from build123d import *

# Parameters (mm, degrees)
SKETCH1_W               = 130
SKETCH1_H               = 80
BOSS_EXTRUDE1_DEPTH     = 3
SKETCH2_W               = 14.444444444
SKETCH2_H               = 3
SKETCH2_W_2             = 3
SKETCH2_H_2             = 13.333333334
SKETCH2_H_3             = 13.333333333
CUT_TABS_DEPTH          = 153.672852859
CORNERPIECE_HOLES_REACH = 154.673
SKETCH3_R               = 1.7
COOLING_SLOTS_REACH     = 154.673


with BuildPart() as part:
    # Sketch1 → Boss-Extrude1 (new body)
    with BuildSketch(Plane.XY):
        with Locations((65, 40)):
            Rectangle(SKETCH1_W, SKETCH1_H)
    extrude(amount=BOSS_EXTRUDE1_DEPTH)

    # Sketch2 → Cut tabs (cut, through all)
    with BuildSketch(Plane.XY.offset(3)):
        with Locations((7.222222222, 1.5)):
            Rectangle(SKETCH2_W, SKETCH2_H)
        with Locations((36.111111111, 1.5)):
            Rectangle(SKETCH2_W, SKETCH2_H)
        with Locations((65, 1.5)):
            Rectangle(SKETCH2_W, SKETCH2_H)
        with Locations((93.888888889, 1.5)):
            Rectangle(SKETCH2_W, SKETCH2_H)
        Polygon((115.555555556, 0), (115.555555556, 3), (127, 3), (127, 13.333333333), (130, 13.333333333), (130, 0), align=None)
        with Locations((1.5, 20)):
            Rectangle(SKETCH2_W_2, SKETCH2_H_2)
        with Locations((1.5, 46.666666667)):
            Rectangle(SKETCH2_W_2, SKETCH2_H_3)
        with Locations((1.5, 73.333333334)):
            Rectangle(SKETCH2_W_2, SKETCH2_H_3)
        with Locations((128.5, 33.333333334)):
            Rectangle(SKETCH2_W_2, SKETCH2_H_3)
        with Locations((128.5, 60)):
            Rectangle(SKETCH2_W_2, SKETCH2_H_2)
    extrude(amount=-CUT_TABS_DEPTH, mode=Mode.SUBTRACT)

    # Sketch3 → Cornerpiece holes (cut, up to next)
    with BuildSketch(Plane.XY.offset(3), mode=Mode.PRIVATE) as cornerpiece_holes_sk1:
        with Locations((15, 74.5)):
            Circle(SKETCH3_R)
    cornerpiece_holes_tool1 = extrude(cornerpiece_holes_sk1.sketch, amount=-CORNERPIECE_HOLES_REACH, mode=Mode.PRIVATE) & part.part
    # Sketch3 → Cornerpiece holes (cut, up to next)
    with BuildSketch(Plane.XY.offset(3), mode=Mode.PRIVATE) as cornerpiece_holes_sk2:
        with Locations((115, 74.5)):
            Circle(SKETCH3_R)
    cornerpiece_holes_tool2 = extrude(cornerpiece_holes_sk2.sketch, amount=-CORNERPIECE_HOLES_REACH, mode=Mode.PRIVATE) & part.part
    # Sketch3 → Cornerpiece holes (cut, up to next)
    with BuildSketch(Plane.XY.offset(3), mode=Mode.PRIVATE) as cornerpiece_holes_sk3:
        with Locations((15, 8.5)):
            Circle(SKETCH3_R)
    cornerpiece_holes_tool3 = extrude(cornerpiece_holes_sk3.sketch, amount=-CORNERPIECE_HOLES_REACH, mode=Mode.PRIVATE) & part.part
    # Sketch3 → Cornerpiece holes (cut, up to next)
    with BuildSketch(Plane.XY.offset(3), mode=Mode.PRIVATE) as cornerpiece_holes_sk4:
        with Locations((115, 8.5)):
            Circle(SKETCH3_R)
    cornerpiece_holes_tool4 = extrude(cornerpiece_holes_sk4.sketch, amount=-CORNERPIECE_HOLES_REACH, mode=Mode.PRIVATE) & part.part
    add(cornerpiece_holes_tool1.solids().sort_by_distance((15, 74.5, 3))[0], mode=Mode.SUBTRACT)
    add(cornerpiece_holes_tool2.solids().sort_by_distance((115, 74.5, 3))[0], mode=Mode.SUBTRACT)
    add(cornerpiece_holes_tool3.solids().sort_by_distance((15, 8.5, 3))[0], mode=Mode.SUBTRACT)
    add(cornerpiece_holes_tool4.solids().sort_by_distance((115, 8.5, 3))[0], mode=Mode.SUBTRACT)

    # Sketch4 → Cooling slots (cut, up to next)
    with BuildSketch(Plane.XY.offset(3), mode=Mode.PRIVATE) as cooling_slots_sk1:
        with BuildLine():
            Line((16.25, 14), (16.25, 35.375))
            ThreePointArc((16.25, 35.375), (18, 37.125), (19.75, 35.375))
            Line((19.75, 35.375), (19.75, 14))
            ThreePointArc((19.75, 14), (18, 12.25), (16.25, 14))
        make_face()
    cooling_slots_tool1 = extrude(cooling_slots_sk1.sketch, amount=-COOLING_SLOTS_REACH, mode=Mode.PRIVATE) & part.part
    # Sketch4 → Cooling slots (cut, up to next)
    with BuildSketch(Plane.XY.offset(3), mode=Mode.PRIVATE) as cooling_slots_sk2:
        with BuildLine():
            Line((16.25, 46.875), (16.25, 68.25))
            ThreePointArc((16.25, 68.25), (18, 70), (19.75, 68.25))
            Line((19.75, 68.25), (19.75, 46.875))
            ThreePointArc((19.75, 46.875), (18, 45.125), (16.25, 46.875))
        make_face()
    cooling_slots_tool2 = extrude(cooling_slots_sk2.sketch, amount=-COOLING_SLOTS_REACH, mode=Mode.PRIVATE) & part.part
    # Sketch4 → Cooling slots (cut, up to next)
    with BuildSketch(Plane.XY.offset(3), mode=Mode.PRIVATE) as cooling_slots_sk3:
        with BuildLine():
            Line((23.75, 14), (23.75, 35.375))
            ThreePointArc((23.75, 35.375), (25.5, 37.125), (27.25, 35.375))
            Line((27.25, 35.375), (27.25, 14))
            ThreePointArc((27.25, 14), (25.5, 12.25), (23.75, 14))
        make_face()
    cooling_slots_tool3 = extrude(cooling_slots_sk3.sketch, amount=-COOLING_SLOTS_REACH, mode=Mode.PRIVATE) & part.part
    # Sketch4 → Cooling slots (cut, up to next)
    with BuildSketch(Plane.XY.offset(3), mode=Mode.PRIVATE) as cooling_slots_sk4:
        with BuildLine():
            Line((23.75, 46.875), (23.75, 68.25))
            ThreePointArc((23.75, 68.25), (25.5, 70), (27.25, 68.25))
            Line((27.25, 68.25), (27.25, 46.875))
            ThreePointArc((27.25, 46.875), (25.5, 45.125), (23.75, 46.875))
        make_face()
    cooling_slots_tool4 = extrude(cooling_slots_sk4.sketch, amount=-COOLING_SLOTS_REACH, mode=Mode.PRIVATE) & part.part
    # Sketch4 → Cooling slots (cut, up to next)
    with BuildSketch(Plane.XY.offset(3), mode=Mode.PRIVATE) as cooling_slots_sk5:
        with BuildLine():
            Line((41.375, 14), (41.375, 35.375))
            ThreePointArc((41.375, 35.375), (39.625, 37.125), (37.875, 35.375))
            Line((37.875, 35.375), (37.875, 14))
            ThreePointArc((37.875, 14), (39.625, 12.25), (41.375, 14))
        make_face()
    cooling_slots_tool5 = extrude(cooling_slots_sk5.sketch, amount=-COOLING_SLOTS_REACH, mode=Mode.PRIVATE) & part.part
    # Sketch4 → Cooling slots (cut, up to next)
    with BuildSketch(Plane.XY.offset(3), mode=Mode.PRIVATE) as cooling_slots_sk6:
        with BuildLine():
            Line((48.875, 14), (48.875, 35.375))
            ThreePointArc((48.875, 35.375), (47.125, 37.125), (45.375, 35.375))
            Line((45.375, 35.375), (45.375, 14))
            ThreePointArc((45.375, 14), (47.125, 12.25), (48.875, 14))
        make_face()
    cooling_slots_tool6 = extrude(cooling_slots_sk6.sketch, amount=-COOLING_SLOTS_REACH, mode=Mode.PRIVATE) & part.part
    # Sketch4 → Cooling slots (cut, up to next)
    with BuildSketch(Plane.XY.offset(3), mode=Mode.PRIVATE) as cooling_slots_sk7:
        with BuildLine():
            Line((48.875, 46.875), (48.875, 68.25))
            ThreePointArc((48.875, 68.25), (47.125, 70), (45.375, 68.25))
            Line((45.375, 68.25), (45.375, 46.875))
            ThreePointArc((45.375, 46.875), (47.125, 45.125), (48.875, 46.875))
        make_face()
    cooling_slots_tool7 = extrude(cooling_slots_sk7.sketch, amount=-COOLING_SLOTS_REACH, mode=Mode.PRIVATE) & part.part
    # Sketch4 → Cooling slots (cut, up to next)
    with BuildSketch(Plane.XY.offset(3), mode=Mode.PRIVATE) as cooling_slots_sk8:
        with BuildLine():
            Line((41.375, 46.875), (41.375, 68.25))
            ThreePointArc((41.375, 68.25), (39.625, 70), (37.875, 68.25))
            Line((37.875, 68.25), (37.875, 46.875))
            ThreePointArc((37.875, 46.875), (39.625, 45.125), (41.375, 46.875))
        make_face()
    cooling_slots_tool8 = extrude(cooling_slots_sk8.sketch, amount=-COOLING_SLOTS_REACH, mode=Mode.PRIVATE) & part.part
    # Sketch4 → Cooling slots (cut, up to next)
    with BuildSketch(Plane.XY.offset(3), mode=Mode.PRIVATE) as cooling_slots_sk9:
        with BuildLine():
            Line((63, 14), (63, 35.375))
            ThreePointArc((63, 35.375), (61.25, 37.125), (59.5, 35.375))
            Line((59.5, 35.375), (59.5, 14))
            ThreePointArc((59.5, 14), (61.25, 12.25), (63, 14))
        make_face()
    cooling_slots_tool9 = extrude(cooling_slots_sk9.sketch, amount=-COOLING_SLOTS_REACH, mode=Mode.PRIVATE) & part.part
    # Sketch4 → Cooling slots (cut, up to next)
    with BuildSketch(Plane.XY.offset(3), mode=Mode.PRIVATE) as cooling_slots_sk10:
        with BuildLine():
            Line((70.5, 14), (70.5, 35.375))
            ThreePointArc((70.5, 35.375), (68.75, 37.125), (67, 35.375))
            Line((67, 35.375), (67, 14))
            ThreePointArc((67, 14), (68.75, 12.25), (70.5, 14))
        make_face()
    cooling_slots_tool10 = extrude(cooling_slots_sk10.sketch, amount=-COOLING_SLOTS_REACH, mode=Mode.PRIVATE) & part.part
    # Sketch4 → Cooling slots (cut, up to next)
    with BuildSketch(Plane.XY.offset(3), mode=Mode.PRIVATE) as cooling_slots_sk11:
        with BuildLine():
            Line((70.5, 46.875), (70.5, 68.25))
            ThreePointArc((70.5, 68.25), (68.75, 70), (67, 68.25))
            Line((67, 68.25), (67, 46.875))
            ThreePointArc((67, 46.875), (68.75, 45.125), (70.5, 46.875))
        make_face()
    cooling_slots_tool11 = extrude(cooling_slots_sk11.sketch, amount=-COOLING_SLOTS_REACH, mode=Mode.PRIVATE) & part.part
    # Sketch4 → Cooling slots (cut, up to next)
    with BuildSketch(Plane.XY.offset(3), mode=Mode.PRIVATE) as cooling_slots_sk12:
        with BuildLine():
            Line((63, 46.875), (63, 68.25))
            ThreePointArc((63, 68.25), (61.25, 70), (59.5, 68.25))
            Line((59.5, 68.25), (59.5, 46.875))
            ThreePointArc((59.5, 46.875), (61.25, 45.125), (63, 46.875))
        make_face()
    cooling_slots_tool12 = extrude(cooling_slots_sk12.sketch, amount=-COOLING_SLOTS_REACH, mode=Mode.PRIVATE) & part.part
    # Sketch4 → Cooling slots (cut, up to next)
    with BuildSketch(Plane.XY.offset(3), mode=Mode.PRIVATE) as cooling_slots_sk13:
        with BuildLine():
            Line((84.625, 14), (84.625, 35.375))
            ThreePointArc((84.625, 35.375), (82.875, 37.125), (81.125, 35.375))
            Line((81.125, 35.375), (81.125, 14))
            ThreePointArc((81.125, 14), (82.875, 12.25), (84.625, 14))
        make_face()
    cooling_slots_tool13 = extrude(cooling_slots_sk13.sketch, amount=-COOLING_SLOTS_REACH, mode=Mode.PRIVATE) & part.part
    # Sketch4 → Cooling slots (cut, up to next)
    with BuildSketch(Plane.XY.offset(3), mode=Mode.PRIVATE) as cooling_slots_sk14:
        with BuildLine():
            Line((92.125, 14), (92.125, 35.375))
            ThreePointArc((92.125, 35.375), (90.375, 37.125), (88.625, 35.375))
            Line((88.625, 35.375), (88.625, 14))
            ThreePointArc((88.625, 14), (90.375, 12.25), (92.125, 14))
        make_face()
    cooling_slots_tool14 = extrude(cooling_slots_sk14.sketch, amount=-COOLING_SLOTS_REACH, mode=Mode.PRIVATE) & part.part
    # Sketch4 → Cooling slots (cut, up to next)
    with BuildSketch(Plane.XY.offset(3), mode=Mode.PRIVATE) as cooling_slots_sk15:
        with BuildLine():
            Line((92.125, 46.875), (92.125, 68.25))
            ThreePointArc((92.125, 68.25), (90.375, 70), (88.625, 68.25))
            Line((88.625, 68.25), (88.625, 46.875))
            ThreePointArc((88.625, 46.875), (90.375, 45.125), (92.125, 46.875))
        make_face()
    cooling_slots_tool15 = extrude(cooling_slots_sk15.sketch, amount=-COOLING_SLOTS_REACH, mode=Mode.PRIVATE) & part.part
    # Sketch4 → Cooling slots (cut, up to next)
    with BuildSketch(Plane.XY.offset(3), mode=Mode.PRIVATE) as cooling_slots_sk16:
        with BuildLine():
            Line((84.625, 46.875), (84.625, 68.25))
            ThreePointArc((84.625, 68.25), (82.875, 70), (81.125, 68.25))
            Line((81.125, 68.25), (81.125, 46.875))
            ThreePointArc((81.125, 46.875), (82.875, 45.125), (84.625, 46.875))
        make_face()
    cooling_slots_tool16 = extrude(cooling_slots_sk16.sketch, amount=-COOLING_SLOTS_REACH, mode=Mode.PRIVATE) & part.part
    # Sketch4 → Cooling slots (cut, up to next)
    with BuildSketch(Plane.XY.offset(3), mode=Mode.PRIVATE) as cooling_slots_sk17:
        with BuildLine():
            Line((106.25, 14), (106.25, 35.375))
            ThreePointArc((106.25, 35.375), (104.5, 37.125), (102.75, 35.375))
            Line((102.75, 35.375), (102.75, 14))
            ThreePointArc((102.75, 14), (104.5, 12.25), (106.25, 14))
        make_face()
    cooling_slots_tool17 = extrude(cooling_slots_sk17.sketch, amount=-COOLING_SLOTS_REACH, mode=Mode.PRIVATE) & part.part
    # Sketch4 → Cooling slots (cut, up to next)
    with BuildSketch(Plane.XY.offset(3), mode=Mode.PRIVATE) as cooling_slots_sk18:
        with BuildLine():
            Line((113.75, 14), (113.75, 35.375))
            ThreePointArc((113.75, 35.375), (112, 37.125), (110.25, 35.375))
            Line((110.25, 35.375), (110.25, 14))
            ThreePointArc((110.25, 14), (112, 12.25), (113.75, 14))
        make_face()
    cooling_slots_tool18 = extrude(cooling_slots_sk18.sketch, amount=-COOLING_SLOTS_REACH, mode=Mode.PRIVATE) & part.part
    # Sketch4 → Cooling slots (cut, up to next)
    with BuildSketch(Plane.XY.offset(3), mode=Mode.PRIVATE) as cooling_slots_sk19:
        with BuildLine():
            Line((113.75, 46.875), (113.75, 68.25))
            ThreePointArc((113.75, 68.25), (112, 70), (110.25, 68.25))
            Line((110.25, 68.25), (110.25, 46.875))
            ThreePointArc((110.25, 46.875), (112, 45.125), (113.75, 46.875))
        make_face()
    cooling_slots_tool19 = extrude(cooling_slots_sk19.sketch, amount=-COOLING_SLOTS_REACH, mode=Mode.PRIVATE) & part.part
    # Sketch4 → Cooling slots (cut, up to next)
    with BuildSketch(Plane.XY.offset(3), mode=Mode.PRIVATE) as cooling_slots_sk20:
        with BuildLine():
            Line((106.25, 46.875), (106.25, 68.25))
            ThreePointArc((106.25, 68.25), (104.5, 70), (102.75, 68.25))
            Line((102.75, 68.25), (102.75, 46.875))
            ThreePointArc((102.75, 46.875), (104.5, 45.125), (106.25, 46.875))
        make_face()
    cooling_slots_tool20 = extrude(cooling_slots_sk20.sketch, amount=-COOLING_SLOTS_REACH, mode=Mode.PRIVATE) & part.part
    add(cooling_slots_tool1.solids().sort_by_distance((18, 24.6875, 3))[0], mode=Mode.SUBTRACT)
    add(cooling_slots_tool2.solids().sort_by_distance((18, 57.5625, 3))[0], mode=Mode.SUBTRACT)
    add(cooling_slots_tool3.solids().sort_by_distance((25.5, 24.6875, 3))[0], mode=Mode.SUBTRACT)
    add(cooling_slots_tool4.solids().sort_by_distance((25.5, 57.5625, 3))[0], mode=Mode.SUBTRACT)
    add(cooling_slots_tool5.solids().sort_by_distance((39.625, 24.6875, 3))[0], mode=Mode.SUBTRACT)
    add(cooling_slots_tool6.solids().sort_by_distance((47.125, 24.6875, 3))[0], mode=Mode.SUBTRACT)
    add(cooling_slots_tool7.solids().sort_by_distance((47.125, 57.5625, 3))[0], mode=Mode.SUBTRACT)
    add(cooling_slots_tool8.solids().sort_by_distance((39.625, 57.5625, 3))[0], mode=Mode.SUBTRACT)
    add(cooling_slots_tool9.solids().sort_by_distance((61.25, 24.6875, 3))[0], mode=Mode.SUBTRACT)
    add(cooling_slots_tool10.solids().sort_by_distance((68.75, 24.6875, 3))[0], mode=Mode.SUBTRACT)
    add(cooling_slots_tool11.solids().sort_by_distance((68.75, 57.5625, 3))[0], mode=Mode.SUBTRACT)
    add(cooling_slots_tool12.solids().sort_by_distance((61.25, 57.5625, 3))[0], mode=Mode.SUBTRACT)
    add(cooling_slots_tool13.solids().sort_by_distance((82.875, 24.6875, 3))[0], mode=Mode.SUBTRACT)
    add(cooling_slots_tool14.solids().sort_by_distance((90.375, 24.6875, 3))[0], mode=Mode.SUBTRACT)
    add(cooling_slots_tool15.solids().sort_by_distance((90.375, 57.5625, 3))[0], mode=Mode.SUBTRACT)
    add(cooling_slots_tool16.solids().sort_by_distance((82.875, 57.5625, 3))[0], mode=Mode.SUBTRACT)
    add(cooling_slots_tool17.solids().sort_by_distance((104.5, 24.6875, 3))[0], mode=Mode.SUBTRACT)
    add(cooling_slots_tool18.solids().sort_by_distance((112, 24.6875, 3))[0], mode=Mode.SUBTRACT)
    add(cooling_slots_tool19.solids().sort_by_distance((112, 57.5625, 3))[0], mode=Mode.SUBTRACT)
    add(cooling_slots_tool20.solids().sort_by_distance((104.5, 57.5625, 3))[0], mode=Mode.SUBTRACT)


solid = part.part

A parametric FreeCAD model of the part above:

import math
import FreeCAD as App
import Part
import Sketcher

V = App.Vector
Q = App.Units.Quantity


def add_polygon(sketch, points):
    """Adds a closed chain of lines whose ends are joined by coincident constraints."""
    first, n = sketch.GeometryCount, len(points)
    for a, b in zip(points, points[1:] + points[:1]):
        sketch.addGeometry(Part.LineSegment(App.Vector(*a, 0), App.Vector(*b, 0)), False)
    for i in range(n):
        sketch.addConstraint(Sketcher.Constraint("Coincident", first + i, 2, first + (i + 1) % n, 1))

doc = App.newDocument("Part")
body = doc.addObject("PartDesign::Body", "Body")

# Sketch on XY plane
sketch1 = body.newObject("Sketcher::SketchObject", "Sketch")
sketch1.AttachmentSupport = (doc.getObject("XY_Plane"), [""])
sketch1.MapMode = "FlatFace"
add_polygon(sketch1, [(0, 80), (0, 0), (130, 0), (130, 80)])  # lines 0-3
sketch1.addConstraint([
    Sketcher.Constraint("Vertical", 0),
    Sketcher.Constraint("Horizontal", 1),
    Sketcher.Constraint("Vertical", 2),
    Sketcher.Constraint("Horizontal", 3),
    Sketcher.Constraint("Coincident", 0, 2, -1, 1),
    Sketcher.Constraint("DistanceX", 1, 1, 1, 2, Q("130 mm")),
    Sketcher.Constraint("DistanceY", 0, 2, 0, 1, Q("80 mm")),
])
pad1 = body.newObject("PartDesign::Pad", "Pad")
pad1.Profile = sketch1
pad1.Length = 3

# Sketch on XY plane
sketch2 = body.newObject("Sketcher::SketchObject", "Sketch001")
sketch2.AttachmentSupport = (doc.getObject("XY_Plane"), [""])
sketch2.MapMode = "FlatFace"
sketch2.AttachmentOffset = App.Placement(V(0, 0, 3), App.Rotation())
add_polygon(sketch2, [(0, 3), (0, 0), (14.4, 0), (14.4, 3)])  # lines 0-3
add_polygon(sketch2, [(28.9, 3), (28.9, 0), (43.3, 0), (43.3, 3)])  # lines 4-7
add_polygon(sketch2, [(57.8, 3), (57.8, 0), (72.2, 0), (72.2, 3)])  # lines 8-11
add_polygon(sketch2, [(86.7, 3), (86.7, 0), (101.1, 0), (101.1, 3)])  # lines 12-15
add_polygon(sketch2, [(115.6, 3), (115.6, 0), (130, 0), (130, 13.3), (127, 13.3), (127, 3)])  # lines 16-21
add_polygon(sketch2, [(0, 26.7), (0, 13.3), (3, 13.3), (3, 26.7)])  # lines 22-25
add_polygon(sketch2, [(0, 53.3), (0, 40), (3, 40), (3, 53.3)])  # lines 26-29
add_polygon(sketch2, [(0, 80), (0, 66.7), (3, 66.7), (3, 80)])  # lines 30-33
add_polygon(sketch2, [(127, 40), (127, 26.7), (130, 26.7), (130, 40)])  # lines 34-37
add_polygon(sketch2, [(127, 66.7), (127, 53.3), (130, 53.3), (130, 66.7)])  # lines 38-41
sketch2.addConstraint([
    Sketcher.Constraint("Vertical", 0),
    Sketcher.Constraint("Horizontal", 1),
    Sketcher.Constraint("Vertical", 2),
    Sketcher.Constraint("Horizontal", 3),
    Sketcher.Constraint("Vertical", 4),
    Sketcher.Constraint("Horizontal", 5),
    Sketcher.Constraint("Vertical", 6),
    Sketcher.Constraint("Horizontal", 7),
    Sketcher.Constraint("Vertical", 8),
    Sketcher.Constraint("Horizontal", 9),
    Sketcher.Constraint("Vertical", 10),
    Sketcher.Constraint("Horizontal", 11),
    Sketcher.Constraint("Vertical", 12),
    Sketcher.Constraint("Horizontal", 13),
    Sketcher.Constraint("Vertical", 14),
    Sketcher.Constraint("Horizontal", 15),
    Sketcher.Constraint("Vertical", 16),
    Sketcher.Constraint("Horizontal", 17),
    Sketcher.Constraint("Vertical", 18),
    Sketcher.Constraint("Horizontal", 19),
    Sketcher.Constraint("Vertical", 20),
    Sketcher.Constraint("Horizontal", 21),
    Sketcher.Constraint("Vertical", 22),
    Sketcher.Constraint("Horizontal", 23),
    Sketcher.Constraint("Vertical", 24),
    Sketcher.Constraint("Horizontal", 25),
    Sketcher.Constraint("Vertical", 26),
    Sketcher.Constraint("Horizontal", 27),
    Sketcher.Constraint("Vertical", 28),
    Sketcher.Constraint("Horizontal", 29),
    Sketcher.Constraint("Vertical", 30),
    Sketcher.Constraint("Horizontal", 31),
    Sketcher.Constraint("Vertical", 32),
    Sketcher.Constraint("Horizontal", 33),
    Sketcher.Constraint("Vertical", 34),
    Sketcher.Constraint("Horizontal", 35),
    Sketcher.Constraint("Vertical", 36),
    Sketcher.Constraint("Horizontal", 37),
    Sketcher.Constraint("Vertical", 38),
    Sketcher.Constraint("Horizontal", 39),
    Sketcher.Constraint("Vertical", 40),
    Sketcher.Constraint("Horizontal", 41),
    Sketcher.Constraint("Coincident", 0, 2, -1, 1),
    Sketcher.Constraint("PointOnObject", 4, 2, -1),
    Sketcher.Constraint("PointOnObject", 8, 2, -1),
    Sketcher.Constraint("PointOnObject", 12, 2, -1),
    Sketcher.Constraint("PointOnObject", 16, 2, -1),
    Sketcher.Constraint("PointOnObject", 22, 2, -2),
    Sketcher.Constraint("PointOnObject", 26, 2, -2),
    Sketcher.Constraint("PointOnObject", 30, 2, -2),
    Sketcher.Constraint("Horizontal", 3, 2, 6, 2),
    Sketcher.Constraint("Horizontal", 7, 2, 10, 2),
    Sketcher.Constraint("Horizontal", 11, 2, 14, 2),
    Sketcher.Constraint("Horizontal", 15, 2, 20, 2),
    Sketcher.Constraint("Horizontal", 19, 2, 22, 2),
    Sketcher.Constraint("Horizontal", 25, 2, 34, 2),
    Sketcher.Constraint("Horizontal", 27, 2, 36, 2),
    Sketcher.Constraint("Horizontal", 29, 2, 38, 2),
    Sketcher.Constraint("Horizontal", 31, 2, 40, 2),
    Sketcher.Constraint("Vertical", 24, 2, 27, 2),
    Sketcher.Constraint("Vertical", 28, 2, 31, 2),
    Sketcher.Constraint("Vertical", 20, 2, 34, 2),
    Sketcher.Constraint("Vertical", 18, 2, 35, 2),
    Sketcher.Constraint("Vertical", 37, 2, 38, 2),
    Sketcher.Constraint("Vertical", 36, 2, 39, 2),
    Sketcher.Constraint("Equal", 3, 5),
    Sketcher.Constraint("Equal", 7, 9),
    Sketcher.Constraint("Equal", 11, 13),
    Sketcher.Constraint("Equal", 15, 17),
    Sketcher.Constraint("Equal", 19, 23),
    Sketcher.Constraint("Equal", 41, 0),
    Sketcher.Constraint("Equal", 18, 22),
    Sketcher.Constraint("Equal", 24, 26),
    Sketcher.Constraint("Equal", 28, 30),
    Sketcher.Constraint("Equal", 32, 34),
    Sketcher.Constraint("Equal", 36, 38),
    Sketcher.Constraint("DistanceX", 19, 2, 19, 1, Q("3 mm")),
    Sketcher.Constraint("DistanceX", -1, 1, 17, 2, Q("130 mm")),
    Sketcher.Constraint("DistanceY", -1, 1, 26, 2, Q("40 mm")),
    Sketcher.Constraint("DistanceX", 1, 1, 1, 2, Q("14.444444 mm")),
    Sketcher.Constraint("DistanceX", -1, 1, 4, 2, Q("28.888889 mm")),
    Sketcher.Constraint("DistanceX", -1, 1, 13, 2, Q("101.111111 mm")),
    Sketcher.Constraint("DistanceX", 4, 2, 8, 2, Q("28.888889 mm")),
])
pocket1 = body.newObject("PartDesign::Pocket", "Pocket")
pocket1.Profile = sketch2
pocket1.Type = "ThroughAll"

# Sketch on XY plane
sketch3 = body.newObject("Sketcher::SketchObject", "Sketch002")
sketch3.AttachmentSupport = (doc.getObject("XY_Plane"), [""])
sketch3.MapMode = "FlatFace"
sketch3.AttachmentOffset = App.Placement(V(0, 0, 3), App.Rotation())
sketch3.addGeometry(Part.Circle(V(15, 74.5, 0), V(0, 0, 1), 1.7), False)
sketch3.addConstraint([
    Sketcher.Constraint("Diameter", 0, Q("3.4 mm")),
    Sketcher.Constraint("DistanceX", -1, 1, 0, 3, Q("15 mm")),
    Sketcher.Constraint("DistanceY", -1, 1, 0, 3, Q("74.5 mm")),
])
pocket2 = body.newObject("PartDesign::Pocket", "Pocket001")
pocket2.Profile = sketch3
pocket2.Type = "UpToFirst"

# Sketch on XY plane
sketch4 = body.newObject("Sketcher::SketchObject", "Sketch003")
sketch4.AttachmentSupport = (doc.getObject("XY_Plane"), [""])
sketch4.MapMode = "FlatFace"
sketch4.AttachmentOffset = App.Placement(V(0, 0, 3), App.Rotation())
sketch4.addGeometry(Part.Circle(V(115, 74.5, 0), V(0, 0, 1), 1.7), False)
sketch4.addConstraint([
    Sketcher.Constraint("Diameter", 0, Q("3.4 mm")),
    Sketcher.Constraint("DistanceX", -1, 1, 0, 3, Q("115 mm")),
    Sketcher.Constraint("DistanceY", -1, 1, 0, 3, Q("74.5 mm")),
])
pocket3 = body.newObject("PartDesign::Pocket", "Pocket002")
pocket3.Profile = sketch4
pocket3.Type = "UpToFirst"

# Sketch on XY plane
sketch5 = body.newObject("Sketcher::SketchObject", "Sketch004")
sketch5.AttachmentSupport = (doc.getObject("XY_Plane"), [""])
sketch5.MapMode = "FlatFace"
sketch5.AttachmentOffset = App.Placement(V(0, 0, 3), App.Rotation())
sketch5.addGeometry(Part.Circle(V(15, 8.5, 0), V(0, 0, 1), 1.7), False)
sketch5.addConstraint([
    Sketcher.Constraint("Diameter", 0, Q("3.4 mm")),
    Sketcher.Constraint("DistanceX", -1, 1, 0, 3, Q("15 mm")),
    Sketcher.Constraint("DistanceY", -1, 1, 0, 3, Q("8.5 mm")),
])
pocket4 = body.newObject("PartDesign::Pocket", "Pocket003")
pocket4.Profile = sketch5
pocket4.Type = "UpToFirst"

# Sketch on XY plane
sketch6 = body.newObject("Sketcher::SketchObject", "Sketch005")
sketch6.AttachmentSupport = (doc.getObject("XY_Plane"), [""])
sketch6.MapMode = "FlatFace"
sketch6.AttachmentOffset = App.Placement(V(0, 0, 3), App.Rotation())
sketch6.addGeometry(Part.Circle(V(115, 8.5, 0), V(0, 0, 1), 1.7), False)
sketch6.addConstraint([
    Sketcher.Constraint("Diameter", 0, Q("3.4 mm")),
    Sketcher.Constraint("DistanceX", -1, 1, 0, 3, Q("115 mm")),
    Sketcher.Constraint("DistanceY", -1, 1, 0, 3, Q("8.5 mm")),
])
pocket5 = body.newObject("PartDesign::Pocket", "Pocket004")
pocket5.Profile = sketch6
pocket5.Type = "UpToFirst"

# Sketch on XY plane
sketch7 = body.newObject("Sketcher::SketchObject", "Sketch006")
sketch7.AttachmentSupport = (doc.getObject("XY_Plane"), [""])
sketch7.MapMode = "FlatFace"
sketch7.AttachmentOffset = App.Placement(V(0, 0, 3), App.Rotation())
sketch7.addGeometry([
    Part.LineSegment(V(16.2, 35.4, 0), V(16.2, 14, 0)),
    Part.ArcOfCircle(Part.Circle(V(18, 14, 0), V(0, 0, 1), 1.8), math.radians(180), math.radians(360)),
    Part.LineSegment(V(19.8, 14, 0), V(19.8, 35.4, 0)),
    Part.ArcOfCircle(Part.Circle(V(18, 35.4, 0), V(0, 0, 1), 1.8), math.radians(0), math.radians(180)),
], False)
sketch7.addConstraint([
    Sketcher.Constraint("Tangent", 0, 2, 1, 1),
    Sketcher.Constraint("Tangent", 1, 2, 2, 1),
    Sketcher.Constraint("Tangent", 2, 2, 3, 1),
    Sketcher.Constraint("Tangent", 3, 2, 0, 1),
    Sketcher.Constraint("Vertical", 0),
    Sketcher.Constraint("Vertical", 2),
    Sketcher.Constraint("Radius", 1, Q("1.75 mm")),
    Sketcher.Constraint("DistanceX", -1, 1, 1, 3, Q("18 mm")),
    Sketcher.Constraint("DistanceY", -1, 1, 1, 3, Q("14 mm")),
    Sketcher.Constraint("DistanceY", 0, 2, 0, 1, Q("21.375 mm")),
])
pocket6 = body.newObject("PartDesign::Pocket", "Pocket005")
pocket6.Profile = sketch7
pocket6.Type = "UpToFirst"

# Sketch on XY plane
sketch8 = body.newObject("Sketcher::SketchObject", "Sketch007")
sketch8.AttachmentSupport = (doc.getObject("XY_Plane"), [""])
sketch8.MapMode = "FlatFace"
sketch8.AttachmentOffset = App.Placement(V(0, 0, 3), App.Rotation())
sketch8.addGeometry([
    Part.LineSegment(V(16.2, 68.2, 0), V(16.2, 46.9, 0)),
    Part.ArcOfCircle(Part.Circle(V(18, 46.9, 0), V(0, 0, 1), 1.8), math.radians(180), math.radians(360)),
    Part.LineSegment(V(19.8, 46.9, 0), V(19.8, 68.2, 0)),
    Part.ArcOfCircle(Part.Circle(V(18, 68.2, 0), V(0, 0, 1), 1.8), math.radians(0), math.radians(180)),
], False)
sketch8.addConstraint([
    Sketcher.Constraint("Tangent", 0, 2, 1, 1),
    Sketcher.Constraint("Tangent", 1, 2, 2, 1),
    Sketcher.Constraint("Tangent", 2, 2, 3, 1),
    Sketcher.Constraint("Tangent", 3, 2, 0, 1),
    Sketcher.Constraint("Vertical", 0),
    Sketcher.Constraint("Vertical", 2),
    Sketcher.Constraint("Radius", 1, Q("1.75 mm")),
    Sketcher.Constraint("DistanceX", -1, 1, 1, 3, Q("18 mm")),
    Sketcher.Constraint("DistanceY", 0, 2, 0, 1, Q("21.375 mm")),
    Sketcher.Constraint("DistanceY", -1, 1, 3, 3, Q("68.25 mm")),
])
pocket7 = body.newObject("PartDesign::Pocket", "Pocket006")
pocket7.Profile = sketch8
pocket7.Type = "UpToFirst"

# Sketch on XY plane
sketch9 = body.newObject("Sketcher::SketchObject", "Sketch008")
sketch9.AttachmentSupport = (doc.getObject("XY_Plane"), [""])
sketch9.MapMode = "FlatFace"
sketch9.AttachmentOffset = App.Placement(V(0, 0, 3), App.Rotation())
sketch9.addGeometry([
    Part.LineSegment(V(23.8, 35.4, 0), V(23.8, 14, 0)),
    Part.ArcOfCircle(Part.Circle(V(25.5, 14, 0), V(0, 0, 1), 1.8), math.radians(180), math.radians(360)),
    Part.LineSegment(V(27.2, 14, 0), V(27.2, 35.4, 0)),
    Part.ArcOfCircle(Part.Circle(V(25.5, 35.4, 0), V(0, 0, 1), 1.8), math.radians(0), math.radians(180)),
], False)
sketch9.addConstraint([
    Sketcher.Constraint("Tangent", 0, 2, 1, 1),
    Sketcher.Constraint("Tangent", 1, 2, 2, 1),
    Sketcher.Constraint("Tangent", 2, 2, 3, 1),
    Sketcher.Constraint("Tangent", 3, 2, 0, 1),
    Sketcher.Constraint("Vertical", 0),
    Sketcher.Constraint("Vertical", 2),
    Sketcher.Constraint("Radius", 1, Q("1.75 mm")),
    Sketcher.Constraint("DistanceY", -1, 1, 1, 3, Q("14 mm")),
    Sketcher.Constraint("DistanceX", -1, 1, 1, 3, Q("25.5 mm")),
    Sketcher.Constraint("DistanceY", 0, 2, 0, 1, Q("21.375 mm")),
])
pocket8 = body.newObject("PartDesign::Pocket", "Pocket007")
pocket8.Profile = sketch9
pocket8.Type = "UpToFirst"

# Sketch on XY plane
sketch10 = body.newObject("Sketcher::SketchObject", "Sketch009")
sketch10.AttachmentSupport = (doc.getObject("XY_Plane"), [""])
sketch10.MapMode = "FlatFace"
sketch10.AttachmentOffset = App.Placement(V(0, 0, 3), App.Rotation())
sketch10.addGeometry([
    Part.LineSegment(V(23.8, 68.2, 0), V(23.8, 46.9, 0)),
    Part.ArcOfCircle(Part.Circle(V(25.5, 46.9, 0), V(0, 0, 1), 1.8), math.radians(180), math.radians(360)),
    Part.LineSegment(V(27.2, 46.9, 0), V(27.2, 68.2, 0)),
    Part.ArcOfCircle(Part.Circle(V(25.5, 68.2, 0), V(0, 0, 1), 1.8), math.radians(0), math.radians(180)),
], False)
sketch10.addConstraint([
    Sketcher.Constraint("Tangent", 0, 2, 1, 1),
    Sketcher.Constraint("Tangent", 1, 2, 2, 1),
    Sketcher.Constraint("Tangent", 2, 2, 3, 1),
    Sketcher.Constraint("Tangent", 3, 2, 0, 1),
    Sketcher.Constraint("Vertical", 0),
    Sketcher.Constraint("Vertical", 2),
    Sketcher.Constraint("Radius", 1, Q("1.75 mm")),
    Sketcher.Constraint("DistanceX", -1, 1, 1, 3, Q("25.5 mm")),
    Sketcher.Constraint("DistanceY", 0, 2, 0, 1, Q("21.375 mm")),
    Sketcher.Constraint("DistanceY", -1, 1, 3, 3, Q("68.25 mm")),
])
pocket9 = body.newObject("PartDesign::Pocket", "Pocket008")
pocket9.Profile = sketch10
pocket9.Type = "UpToFirst"

# Sketch on XY plane
sketch11 = body.newObject("Sketcher::SketchObject", "Sketch010")
sketch11.AttachmentSupport = (doc.getObject("XY_Plane"), [""])
sketch11.MapMode = "FlatFace"
sketch11.AttachmentOffset = App.Placement(V(0, 0, 3), App.Rotation())
sketch11.addGeometry([
    Part.LineSegment(V(41.4, 14, 0), V(41.4, 35.4, 0)),
    Part.ArcOfCircle(Part.Circle(V(39.6, 35.4, 0), V(0, 0, 1), 1.8), math.radians(0), math.radians(180)),
    Part.LineSegment(V(37.9, 35.4, 0), V(37.9, 14, 0)),
    Part.ArcOfCircle(Part.Circle(V(39.6, 14, 0), V(0, 0, 1), 1.8), math.radians(180), math.radians(360)),
], False)
sketch11.addConstraint([
    Sketcher.Constraint("Tangent", 0, 2, 1, 1),
    Sketcher.Constraint("Tangent", 1, 2, 2, 1),
    Sketcher.Constraint("Tangent", 2, 2, 3, 1),
    Sketcher.Constraint("Tangent", 3, 2, 0, 1),
    Sketcher.Constraint("Vertical", 0),
    Sketcher.Constraint("Vertical", 2),
    Sketcher.Constraint("Radius", 1, Q("1.75 mm")),
    Sketcher.Constraint("DistanceY", -1, 1, 3, 3, Q("14 mm")),
    Sketcher.Constraint("DistanceY", 0, 1, 0, 2, Q("21.375 mm")),
    Sketcher.Constraint("DistanceX", -1, 1, 1, 3, Q("39.625 mm")),
])
pocket10 = body.newObject("PartDesign::Pocket", "Pocket009")
pocket10.Profile = sketch11
pocket10.Type = "UpToFirst"

# Sketch on XY plane
sketch12 = body.newObject("Sketcher::SketchObject", "Sketch011")
sketch12.AttachmentSupport = (doc.getObject("XY_Plane"), [""])
sketch12.MapMode = "FlatFace"
sketch12.AttachmentOffset = App.Placement(V(0, 0, 3), App.Rotation())
sketch12.addGeometry([
    Part.LineSegment(V(48.9, 14, 0), V(48.9, 35.4, 0)),
    Part.ArcOfCircle(Part.Circle(V(47.1, 35.4, 0), V(0, 0, 1), 1.8), math.radians(0), math.radians(180)),
    Part.LineSegment(V(45.4, 35.4, 0), V(45.4, 14, 0)),
    Part.ArcOfCircle(Part.Circle(V(47.1, 14, 0), V(0, 0, 1), 1.8), math.radians(180), math.radians(360)),
], False)
sketch12.addConstraint([
    Sketcher.Constraint("Tangent", 0, 2, 1, 1),
    Sketcher.Constraint("Tangent", 1, 2, 2, 1),
    Sketcher.Constraint("Tangent", 2, 2, 3, 1),
    Sketcher.Constraint("Tangent", 3, 2, 0, 1),
    Sketcher.Constraint("Vertical", 0),
    Sketcher.Constraint("Vertical", 2),
    Sketcher.Constraint("Radius", 1, Q("1.75 mm")),
    Sketcher.Constraint("DistanceY", -1, 1, 3, 3, Q("14 mm")),
    Sketcher.Constraint("DistanceY", 0, 1, 0, 2, Q("21.375 mm")),
    Sketcher.Constraint("DistanceX", -1, 1, 1, 3, Q("47.125 mm")),
])
pocket11 = body.newObject("PartDesign::Pocket", "Pocket010")
pocket11.Profile = sketch12
pocket11.Type = "UpToFirst"

# Sketch on XY plane
sketch13 = body.newObject("Sketcher::SketchObject", "Sketch012")
sketch13.AttachmentSupport = (doc.getObject("XY_Plane"), [""])
sketch13.MapMode = "FlatFace"
sketch13.AttachmentOffset = App.Placement(V(0, 0, 3), App.Rotation())
sketch13.addGeometry([
    Part.LineSegment(V(48.9, 46.9, 0), V(48.9, 68.2, 0)),
    Part.ArcOfCircle(Part.Circle(V(47.1, 68.2, 0), V(0, 0, 1), 1.8), math.radians(0), math.radians(180)),
    Part.LineSegment(V(45.4, 68.2, 0), V(45.4, 46.9, 0)),
    Part.ArcOfCircle(Part.Circle(V(47.1, 46.9, 0), V(0, 0, 1), 1.8), math.radians(180), math.radians(360)),
], False)
sketch13.addConstraint([
    Sketcher.Constraint("Tangent", 0, 2, 1, 1),
    Sketcher.Constraint("Tangent", 1, 2, 2, 1),
    Sketcher.Constraint("Tangent", 2, 2, 3, 1),
    Sketcher.Constraint("Tangent", 3, 2, 0, 1),
    Sketcher.Constraint("Vertical", 0),
    Sketcher.Constraint("Vertical", 2),
    Sketcher.Constraint("Radius", 1, Q("1.75 mm")),
    Sketcher.Constraint("DistanceY", 0, 1, 0, 2, Q("21.375 mm")),
    Sketcher.Constraint("DistanceY", -1, 1, 1, 3, Q("68.25 mm")),
    Sketcher.Constraint("DistanceX", -1, 1, 1, 3, Q("47.125 mm")),
])
pocket12 = body.newObject("PartDesign::Pocket", "Pocket011")
pocket12.Profile = sketch13
pocket12.Type = "UpToFirst"

# Sketch on XY plane
sketch14 = body.newObject("Sketcher::SketchObject", "Sketch013")
sketch14.AttachmentSupport = (doc.getObject("XY_Plane"), [""])
sketch14.MapMode = "FlatFace"
sketch14.AttachmentOffset = App.Placement(V(0, 0, 3), App.Rotation())
sketch14.addGeometry([
    Part.LineSegment(V(41.4, 46.9, 0), V(41.4, 68.2, 0)),
    Part.ArcOfCircle(Part.Circle(V(39.6, 68.2, 0), V(0, 0, 1), 1.8), math.radians(0), math.radians(180)),
    Part.LineSegment(V(37.9, 68.2, 0), V(37.9, 46.9, 0)),
    Part.ArcOfCircle(Part.Circle(V(39.6, 46.9, 0), V(0, 0, 1), 1.8), math.radians(180), math.radians(360)),
], False)
sketch14.addConstraint([
    Sketcher.Constraint("Tangent", 0, 2, 1, 1),
    Sketcher.Constraint("Tangent", 1, 2, 2, 1),
    Sketcher.Constraint("Tangent", 2, 2, 3, 1),
    Sketcher.Constraint("Tangent", 3, 2, 0, 1),
    Sketcher.Constraint("Vertical", 0),
    Sketcher.Constraint("Vertical", 2),
    Sketcher.Constraint("Radius", 1, Q("1.75 mm")),
    Sketcher.Constraint("DistanceY", 0, 1, 0, 2, Q("21.375 mm")),
    Sketcher.Constraint("DistanceY", -1, 1, 1, 3, Q("68.25 mm")),
    Sketcher.Constraint("DistanceX", -1, 1, 1, 3, Q("39.625 mm")),
])
pocket13 = body.newObject("PartDesign::Pocket", "Pocket012")
pocket13.Profile = sketch14
pocket13.Type = "UpToFirst"

# Sketch on XY plane
sketch15 = body.newObject("Sketcher::SketchObject", "Sketch014")
sketch15.AttachmentSupport = (doc.getObject("XY_Plane"), [""])
sketch15.MapMode = "FlatFace"
sketch15.AttachmentOffset = App.Placement(V(0, 0, 3), App.Rotation())
sketch15.addGeometry([
    Part.LineSegment(V(63, 14, 0), V(63, 35.4, 0)),
    Part.ArcOfCircle(Part.Circle(V(61.2, 35.4, 0), V(0, 0, 1), 1.8), math.radians(0), math.radians(180)),
    Part.LineSegment(V(59.5, 35.4, 0), V(59.5, 14, 0)),
    Part.ArcOfCircle(Part.Circle(V(61.2, 14, 0), V(0, 0, 1), 1.8), math.radians(180), math.radians(360)),
], False)
sketch15.addConstraint([
    Sketcher.Constraint("Tangent", 0, 2, 1, 1),
    Sketcher.Constraint("Tangent", 1, 2, 2, 1),
    Sketcher.Constraint("Tangent", 2, 2, 3, 1),
    Sketcher.Constraint("Tangent", 3, 2, 0, 1),
    Sketcher.Constraint("Vertical", 0),
    Sketcher.Constraint("Vertical", 2),
    Sketcher.Constraint("Radius", 1, Q("1.75 mm")),
    Sketcher.Constraint("DistanceY", -1, 1, 3, 3, Q("14 mm")),
    Sketcher.Constraint("DistanceX", -1, 1, 0, 2, Q("63 mm")),
    Sketcher.Constraint("DistanceY", 0, 1, 0, 2, Q("21.375 mm")),
])
pocket14 = body.newObject("PartDesign::Pocket", "Pocket013")
pocket14.Profile = sketch15
pocket14.Type = "UpToFirst"

# Sketch on XY plane
sketch16 = body.newObject("Sketcher::SketchObject", "Sketch015")
sketch16.AttachmentSupport = (doc.getObject("XY_Plane"), [""])
sketch16.MapMode = "FlatFace"
sketch16.AttachmentOffset = App.Placement(V(0, 0, 3), App.Rotation())
sketch16.addGeometry([
    Part.LineSegment(V(70.5, 14, 0), V(70.5, 35.4, 0)),
    Part.ArcOfCircle(Part.Circle(V(68.8, 35.4, 0), V(0, 0, 1), 1.8), math.radians(0), math.radians(180)),
    Part.LineSegment(V(67, 35.4, 0), V(67, 14, 0)),
    Part.ArcOfCircle(Part.Circle(V(68.8, 14, 0), V(0, 0, 1), 1.8), math.radians(180), math.radians(360)),
], False)
sketch16.addConstraint([
    Sketcher.Constraint("Tangent", 0, 2, 1, 1),
    Sketcher.Constraint("Tangent", 1, 2, 2, 1),
    Sketcher.Constraint("Tangent", 2, 2, 3, 1),
    Sketcher.Constraint("Tangent", 3, 2, 0, 1),
    Sketcher.Constraint("Vertical", 0),
    Sketcher.Constraint("Vertical", 2),
    Sketcher.Constraint("Radius", 1, Q("1.75 mm")),
    Sketcher.Constraint("DistanceY", -1, 1, 3, 3, Q("14 mm")),
    Sketcher.Constraint("DistanceX", -1, 1, 1, 2, Q("67 mm")),
    Sketcher.Constraint("DistanceY", 0, 1, 0, 2, Q("21.375 mm")),
])
pocket15 = body.newObject("PartDesign::Pocket", "Pocket014")
pocket15.Profile = sketch16
pocket15.Type = "UpToFirst"

# Sketch on XY plane
sketch17 = body.newObject("Sketcher::SketchObject", "Sketch016")
sketch17.AttachmentSupport = (doc.getObject("XY_Plane"), [""])
sketch17.MapMode = "FlatFace"
sketch17.AttachmentOffset = App.Placement(V(0, 0, 3), App.Rotation())
sketch17.addGeometry([
    Part.LineSegment(V(70.5, 46.9, 0), V(70.5, 68.2, 0)),
    Part.ArcOfCircle(Part.Circle(V(68.8, 68.2, 0), V(0, 0, 1), 1.8), math.radians(0), math.radians(180)),
    Part.LineSegment(V(67, 68.2, 0), V(67, 46.9, 0)),
    Part.ArcOfCircle(Part.Circle(V(68.8, 46.9, 0), V(0, 0, 1), 1.8), math.radians(180), math.radians(360)),
], False)
sketch17.addConstraint([
    Sketcher.Constraint("Tangent", 0, 2, 1, 1),
    Sketcher.Constraint("Tangent", 1, 2, 2, 1),
    Sketcher.Constraint("Tangent", 2, 2, 3, 1),
    Sketcher.Constraint("Tangent", 3, 2, 0, 1),
    Sketcher.Constraint("Vertical", 0),
    Sketcher.Constraint("Vertical", 2),
    Sketcher.Constraint("Radius", 1, Q("1.75 mm")),
    Sketcher.Constraint("DistanceX", -1, 1, 1, 2, Q("67 mm")),
    Sketcher.Constraint("DistanceY", 0, 1, 0, 2, Q("21.375 mm")),
    Sketcher.Constraint("DistanceY", -1, 1, 1, 3, Q("68.25 mm")),
])
pocket16 = body.newObject("PartDesign::Pocket", "Pocket015")
pocket16.Profile = sketch17
pocket16.Type = "UpToFirst"

# Sketch on XY plane
sketch18 = body.newObject("Sketcher::SketchObject", "Sketch017")
sketch18.AttachmentSupport = (doc.getObject("XY_Plane"), [""])
sketch18.MapMode = "FlatFace"
sketch18.AttachmentOffset = App.Placement(V(0, 0, 3), App.Rotation())
sketch18.addGeometry([
    Part.LineSegment(V(63, 46.9, 0), V(63, 68.2, 0)),
    Part.ArcOfCircle(Part.Circle(V(61.2, 68.2, 0), V(0, 0, 1), 1.8), math.radians(0), math.radians(180)),
    Part.LineSegment(V(59.5, 68.2, 0), V(59.5, 46.9, 0)),
    Part.ArcOfCircle(Part.Circle(V(61.2, 46.9, 0), V(0, 0, 1), 1.8), math.radians(180), math.radians(360)),
], False)
sketch18.addConstraint([
    Sketcher.Constraint("Tangent", 0, 2, 1, 1),
    Sketcher.Constraint("Tangent", 1, 2, 2, 1),
    Sketcher.Constraint("Tangent", 2, 2, 3, 1),
    Sketcher.Constraint("Tangent", 3, 2, 0, 1),
    Sketcher.Constraint("Vertical", 0),
    Sketcher.Constraint("Vertical", 2),
    Sketcher.Constraint("Radius", 1, Q("1.75 mm")),
    Sketcher.Constraint("DistanceX", -1, 1, 0, 2, Q("63 mm")),
    Sketcher.Constraint("DistanceY", 0, 1, 0, 2, Q("21.375 mm")),
    Sketcher.Constraint("DistanceY", -1, 1, 1, 3, Q("68.25 mm")),
])
pocket17 = body.newObject("PartDesign::Pocket", "Pocket016")
pocket17.Profile = sketch18
pocket17.Type = "UpToFirst"

# Sketch on XY plane
sketch19 = body.newObject("Sketcher::SketchObject", "Sketch018")
sketch19.AttachmentSupport = (doc.getObject("XY_Plane"), [""])
sketch19.MapMode = "FlatFace"
sketch19.AttachmentOffset = App.Placement(V(0, 0, 3), App.Rotation())
sketch19.addGeometry([
    Part.LineSegment(V(84.6, 14, 0), V(84.6, 35.4, 0)),
    Part.ArcOfCircle(Part.Circle(V(82.9, 35.4, 0), V(0, 0, 1), 1.8), math.radians(0), math.radians(180)),
    Part.LineSegment(V(81.1, 35.4, 0), V(81.1, 14, 0)),
    Part.ArcOfCircle(Part.Circle(V(82.9, 14, 0), V(0, 0, 1), 1.8), math.radians(180), math.radians(360)),
], False)
sketch19.addConstraint([
    Sketcher.Constraint("Tangent", 0, 2, 1, 1),
    Sketcher.Constraint("Tangent", 1, 2, 2, 1),
    Sketcher.Constraint("Tangent", 2, 2, 3, 1),
    Sketcher.Constraint("Tangent", 3, 2, 0, 1),
    Sketcher.Constraint("Vertical", 0),
    Sketcher.Constraint("Vertical", 2),
    Sketcher.Constraint("Radius", 1, Q("1.75 mm")),
    Sketcher.Constraint("DistanceY", -1, 1, 3, 3, Q("14 mm")),
    Sketcher.Constraint("DistanceY", 0, 1, 0, 2, Q("21.375 mm")),
    Sketcher.Constraint("DistanceX", -1, 1, 1, 3, Q("82.875 mm")),
])
pocket18 = body.newObject("PartDesign::Pocket", "Pocket017")
pocket18.Profile = sketch19
pocket18.Type = "UpToFirst"

# Sketch on XY plane
sketch20 = body.newObject("Sketcher::SketchObject", "Sketch019")
sketch20.AttachmentSupport = (doc.getObject("XY_Plane"), [""])
sketch20.MapMode = "FlatFace"
sketch20.AttachmentOffset = App.Placement(V(0, 0, 3), App.Rotation())
sketch20.addGeometry([
    Part.LineSegment(V(92.1, 14, 0), V(92.1, 35.4, 0)),
    Part.ArcOfCircle(Part.Circle(V(90.4, 35.4, 0), V(0, 0, 1), 1.8), math.radians(0), math.radians(180)),
    Part.LineSegment(V(88.6, 35.4, 0), V(88.6, 14, 0)),
    Part.ArcOfCircle(Part.Circle(V(90.4, 14, 0), V(0, 0, 1), 1.8), math.radians(180), math.radians(360)),
], False)
sketch20.addConstraint([
    Sketcher.Constraint("Tangent", 0, 2, 1, 1),
    Sketcher.Constraint("Tangent", 1, 2, 2, 1),
    Sketcher.Constraint("Tangent", 2, 2, 3, 1),
    Sketcher.Constraint("Tangent", 3, 2, 0, 1),
    Sketcher.Constraint("Vertical", 0),
    Sketcher.Constraint("Vertical", 2),
    Sketcher.Constraint("Radius", 1, Q("1.75 mm")),
    Sketcher.Constraint("DistanceY", -1, 1, 3, 3, Q("14 mm")),
    Sketcher.Constraint("DistanceY", 0, 1, 0, 2, Q("21.375 mm")),
    Sketcher.Constraint("DistanceX", -1, 1, 1, 3, Q("90.375 mm")),
])
pocket19 = body.newObject("PartDesign::Pocket", "Pocket018")
pocket19.Profile = sketch20
pocket19.Type = "UpToFirst"

# Sketch on XY plane
sketch21 = body.newObject("Sketcher::SketchObject", "Sketch020")
sketch21.AttachmentSupport = (doc.getObject("XY_Plane"), [""])
sketch21.MapMode = "FlatFace"
sketch21.AttachmentOffset = App.Placement(V(0, 0, 3), App.Rotation())
sketch21.addGeometry([
    Part.LineSegment(V(92.1, 46.9, 0), V(92.1, 68.2, 0)),
    Part.ArcOfCircle(Part.Circle(V(90.4, 68.2, 0), V(0, 0, 1), 1.8), math.radians(0), math.radians(180)),
    Part.LineSegment(V(88.6, 68.2, 0), V(88.6, 46.9, 0)),
    Part.ArcOfCircle(Part.Circle(V(90.4, 46.9, 0), V(0, 0, 1), 1.8), math.radians(180), math.radians(360)),
], False)
sketch21.addConstraint([
    Sketcher.Constraint("Tangent", 0, 2, 1, 1),
    Sketcher.Constraint("Tangent", 1, 2, 2, 1),
    Sketcher.Constraint("Tangent", 2, 2, 3, 1),
    Sketcher.Constraint("Tangent", 3, 2, 0, 1),
    Sketcher.Constraint("Vertical", 0),
    Sketcher.Constraint("Vertical", 2),
    Sketcher.Constraint("Radius", 1, Q("1.75 mm")),
    Sketcher.Constraint("DistanceY", 0, 1, 0, 2, Q("21.375 mm")),
    Sketcher.Constraint("DistanceY", -1, 1, 1, 3, Q("68.25 mm")),
    Sketcher.Constraint("DistanceX", -1, 1, 1, 3, Q("90.375 mm")),
])
pocket20 = body.newObject("PartDesign::Pocket", "Pocket019")
pocket20.Profile = sketch21
pocket20.Type = "UpToFirst"

# Sketch on XY plane
sketch22 = body.newObject("Sketcher::SketchObject", "Sketch021")
sketch22.AttachmentSupport = (doc.getObject("XY_Plane"), [""])
sketch22.MapMode = "FlatFace"
sketch22.AttachmentOffset = App.Placement(V(0, 0, 3), App.Rotation())
sketch22.addGeometry([
    Part.LineSegment(V(84.6, 46.9, 0), V(84.6, 68.2, 0)),
    Part.ArcOfCircle(Part.Circle(V(82.9, 68.2, 0), V(0, 0, 1), 1.8), math.radians(0), math.radians(180)),
    Part.LineSegment(V(81.1, 68.2, 0), V(81.1, 46.9, 0)),
    Part.ArcOfCircle(Part.Circle(V(82.9, 46.9, 0), V(0, 0, 1), 1.8), math.radians(180), math.radians(360)),
], False)
sketch22.addConstraint([
    Sketcher.Constraint("Tangent", 0, 2, 1, 1),
    Sketcher.Constraint("Tangent", 1, 2, 2, 1),
    Sketcher.Constraint("Tangent", 2, 2, 3, 1),
    Sketcher.Constraint("Tangent", 3, 2, 0, 1),
    Sketcher.Constraint("Vertical", 0),
    Sketcher.Constraint("Vertical", 2),
    Sketcher.Constraint("Radius", 1, Q("1.75 mm")),
    Sketcher.Constraint("DistanceY", 0, 1, 0, 2, Q("21.375 mm")),
    Sketcher.Constraint("DistanceY", -1, 1, 1, 3, Q("68.25 mm")),
    Sketcher.Constraint("DistanceX", -1, 1, 1, 3, Q("82.875 mm")),
])
pocket21 = body.newObject("PartDesign::Pocket", "Pocket020")
pocket21.Profile = sketch22
pocket21.Type = "UpToFirst"

# Sketch on XY plane
sketch23 = body.newObject("Sketcher::SketchObject", "Sketch022")
sketch23.AttachmentSupport = (doc.getObject("XY_Plane"), [""])
sketch23.MapMode = "FlatFace"
sketch23.AttachmentOffset = App.Placement(V(0, 0, 3), App.Rotation())
sketch23.addGeometry([
    Part.LineSegment(V(106.2, 14, 0), V(106.2, 35.4, 0)),
    Part.ArcOfCircle(Part.Circle(V(104.5, 35.4, 0), V(0, 0, 1), 1.8), math.radians(0), math.radians(180)),
    Part.LineSegment(V(102.8, 35.4, 0), V(102.8, 14, 0)),
    Part.ArcOfCircle(Part.Circle(V(104.5, 14, 0), V(0, 0, 1), 1.8), math.radians(180), math.radians(360)),
], False)
sketch23.addConstraint([
    Sketcher.Constraint("Tangent", 0, 2, 1, 1),
    Sketcher.Constraint("Tangent", 1, 2, 2, 1),
    Sketcher.Constraint("Tangent", 2, 2, 3, 1),
    Sketcher.Constraint("Tangent", 3, 2, 0, 1),
    Sketcher.Constraint("Vertical", 0),
    Sketcher.Constraint("Vertical", 2),
    Sketcher.Constraint("Radius", 1, Q("1.75 mm")),
    Sketcher.Constraint("DistanceY", -1, 1, 3, 3, Q("14 mm")),
    Sketcher.Constraint("DistanceX", -1, 1, 1, 3, Q("104.5 mm")),
    Sketcher.Constraint("DistanceY", 0, 1, 0, 2, Q("21.375 mm")),
])
pocket22 = body.newObject("PartDesign::Pocket", "Pocket021")
pocket22.Profile = sketch23
pocket22.Type = "UpToFirst"

# Sketch on XY plane
sketch24 = body.newObject("Sketcher::SketchObject", "Sketch023")
sketch24.AttachmentSupport = (doc.getObject("XY_Plane"), [""])
sketch24.MapMode = "FlatFace"
sketch24.AttachmentOffset = App.Placement(V(0, 0, 3), App.Rotation())
sketch24.addGeometry([
    Part.LineSegment(V(113.8, 14, 0), V(113.8, 35.4, 0)),
    Part.ArcOfCircle(Part.Circle(V(112, 35.4, 0), V(0, 0, 1), 1.8), math.radians(0), math.radians(180)),
    Part.LineSegment(V(110.2, 35.4, 0), V(110.2, 14, 0)),
    Part.ArcOfCircle(Part.Circle(V(112, 14, 0), V(0, 0, 1), 1.8), math.radians(180), math.radians(360)),
], False)
sketch24.addConstraint([
    Sketcher.Constraint("Tangent", 0, 2, 1, 1),
    Sketcher.Constraint("Tangent", 1, 2, 2, 1),
    Sketcher.Constraint("Tangent", 2, 2, 3, 1),
    Sketcher.Constraint("Tangent", 3, 2, 0, 1),
    Sketcher.Constraint("Vertical", 0),
    Sketcher.Constraint("Vertical", 2),
    Sketcher.Constraint("Radius", 1, Q("1.75 mm")),
    Sketcher.Constraint("DistanceX", -1, 1, 1, 3, Q("112 mm")),
    Sketcher.Constraint("DistanceY", -1, 1, 3, 3, Q("14 mm")),
    Sketcher.Constraint("DistanceY", 0, 1, 0, 2, Q("21.375 mm")),
])
pocket23 = body.newObject("PartDesign::Pocket", "Pocket022")
pocket23.Profile = sketch24
pocket23.Type = "UpToFirst"

# Sketch on XY plane
sketch25 = body.newObject("Sketcher::SketchObject", "Sketch024")
sketch25.AttachmentSupport = (doc.getObject("XY_Plane"), [""])
sketch25.MapMode = "FlatFace"
sketch25.AttachmentOffset = App.Placement(V(0, 0, 3), App.Rotation())
sketch25.addGeometry([
    Part.LineSegment(V(113.8, 46.9, 0), V(113.8, 68.2, 0)),
    Part.ArcOfCircle(Part.Circle(V(112, 68.2, 0), V(0, 0, 1), 1.8), math.radians(0), math.radians(180)),
    Part.LineSegment(V(110.2, 68.2, 0), V(110.2, 46.9, 0)),
    Part.ArcOfCircle(Part.Circle(V(112, 46.9, 0), V(0, 0, 1), 1.8), math.radians(180), math.radians(360)),
], False)
sketch25.addConstraint([
    Sketcher.Constraint("Tangent", 0, 2, 1, 1),
    Sketcher.Constraint("Tangent", 1, 2, 2, 1),
    Sketcher.Constraint("Tangent", 2, 2, 3, 1),
    Sketcher.Constraint("Tangent", 3, 2, 0, 1),
    Sketcher.Constraint("Vertical", 0),
    Sketcher.Constraint("Vertical", 2),
    Sketcher.Constraint("Radius", 1, Q("1.75 mm")),
    Sketcher.Constraint("DistanceX", -1, 1, 1, 3, Q("112 mm")),
    Sketcher.Constraint("DistanceY", 0, 1, 0, 2, Q("21.375 mm")),
    Sketcher.Constraint("DistanceY", -1, 1, 1, 3, Q("68.25 mm")),
])
pocket24 = body.newObject("PartDesign::Pocket", "Pocket023")
pocket24.Profile = sketch25
pocket24.Type = "UpToFirst"

# Sketch on XY plane
sketch26 = body.newObject("Sketcher::SketchObject", "Sketch025")
sketch26.AttachmentSupport = (doc.getObject("XY_Plane"), [""])
sketch26.MapMode = "FlatFace"
sketch26.AttachmentOffset = App.Placement(V(0, 0, 3), App.Rotation())
sketch26.addGeometry([
    Part.LineSegment(V(106.2, 46.9, 0), V(106.2, 68.2, 0)),
    Part.ArcOfCircle(Part.Circle(V(104.5, 68.2, 0), V(0, 0, 1), 1.8), math.radians(0), math.radians(180)),
    Part.LineSegment(V(102.8, 68.2, 0), V(102.8, 46.9, 0)),
    Part.ArcOfCircle(Part.Circle(V(104.5, 46.9, 0), V(0, 0, 1), 1.8), math.radians(180), math.radians(360)),
], False)
sketch26.addConstraint([
    Sketcher.Constraint("Tangent", 0, 2, 1, 1),
    Sketcher.Constraint("Tangent", 1, 2, 2, 1),
    Sketcher.Constraint("Tangent", 2, 2, 3, 1),
    Sketcher.Constraint("Tangent", 3, 2, 0, 1),
    Sketcher.Constraint("Vertical", 0),
    Sketcher.Constraint("Vertical", 2),
    Sketcher.Constraint("Radius", 1, Q("1.75 mm")),
    Sketcher.Constraint("DistanceX", -1, 1, 1, 3, Q("104.5 mm")),
    Sketcher.Constraint("DistanceY", 0, 1, 0, 2, Q("21.375 mm")),
    Sketcher.Constraint("DistanceY", -1, 1, 1, 3, Q("68.25 mm")),
])
pocket25 = body.newObject("PartDesign::Pocket", "Pocket024")
pocket25.Profile = sketch26
pocket25.Type = "UpToFirst"

doc.recompute()
